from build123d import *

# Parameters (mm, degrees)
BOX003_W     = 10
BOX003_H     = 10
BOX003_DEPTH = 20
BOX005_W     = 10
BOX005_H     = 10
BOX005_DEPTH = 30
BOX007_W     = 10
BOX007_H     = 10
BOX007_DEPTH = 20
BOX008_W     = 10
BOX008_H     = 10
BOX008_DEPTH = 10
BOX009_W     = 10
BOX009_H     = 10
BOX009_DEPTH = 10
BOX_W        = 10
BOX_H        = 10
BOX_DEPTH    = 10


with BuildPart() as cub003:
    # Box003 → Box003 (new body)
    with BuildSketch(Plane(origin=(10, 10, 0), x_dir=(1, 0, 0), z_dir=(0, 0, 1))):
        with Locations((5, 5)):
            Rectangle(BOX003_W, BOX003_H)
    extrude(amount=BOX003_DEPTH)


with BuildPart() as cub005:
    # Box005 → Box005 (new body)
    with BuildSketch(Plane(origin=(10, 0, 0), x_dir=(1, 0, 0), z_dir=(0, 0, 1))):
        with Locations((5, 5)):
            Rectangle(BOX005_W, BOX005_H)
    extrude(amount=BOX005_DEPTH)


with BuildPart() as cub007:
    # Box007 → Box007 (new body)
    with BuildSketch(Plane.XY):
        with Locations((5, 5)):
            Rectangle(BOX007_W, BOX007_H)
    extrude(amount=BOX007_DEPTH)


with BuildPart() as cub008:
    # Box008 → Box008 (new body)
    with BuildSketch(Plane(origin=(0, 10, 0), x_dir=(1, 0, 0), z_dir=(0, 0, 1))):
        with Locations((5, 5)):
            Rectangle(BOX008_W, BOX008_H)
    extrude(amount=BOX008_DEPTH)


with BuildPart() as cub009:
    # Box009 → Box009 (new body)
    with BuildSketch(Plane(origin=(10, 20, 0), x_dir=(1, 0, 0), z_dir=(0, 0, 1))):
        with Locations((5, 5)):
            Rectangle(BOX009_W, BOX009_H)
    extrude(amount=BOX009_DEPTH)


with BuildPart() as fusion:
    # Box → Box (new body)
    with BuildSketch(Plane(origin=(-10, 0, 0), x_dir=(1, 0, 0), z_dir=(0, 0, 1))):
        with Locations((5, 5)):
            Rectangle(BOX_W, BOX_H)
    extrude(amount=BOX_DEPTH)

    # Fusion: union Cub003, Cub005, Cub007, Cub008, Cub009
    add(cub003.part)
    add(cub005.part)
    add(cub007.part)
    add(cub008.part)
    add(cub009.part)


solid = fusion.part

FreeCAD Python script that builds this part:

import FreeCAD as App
import Part
import Sketcher

V = App.Vector
Q = App.Units.Quantity

doc = App.newDocument("Part")
body = doc.addObject("PartDesign::Body", "Body")

sketch1 = body.newObject("Sketcher::SketchObject", "Sketch")
sketch1.AttachmentSupport = (doc.getObject("XY_Plane"), [""])
sketch1.MapMode = "FlatFace"
sketch1.addGeometry([
    Part.LineSegment(V(10, 20, 0), V(10, 10, 0)),
    Part.LineSegment(V(10, 10, 0), V(20, 10, 0)),
    Part.LineSegment(V(20, 10, 0), V(20, 20, 0)),
    Part.LineSegment(V(20, 20, 0), V(10, 20, 0)),
], False)
sketch1.addConstraint([
    Sketcher.Constraint("Coincident", 0, 2, 1, 1),
    Sketcher.Constraint("Coincident", 1, 2, 2, 1),
    Sketcher.Constraint("Coincident", 2, 2, 3, 1),
    Sketcher.Constraint("Coincident", 3, 2, 0, 1),
    Sketcher.Constraint("Vertical", 0),
    Sketcher.Constraint("Horizontal", 1),
    Sketcher.Constraint("Vertical", 2),
    Sketcher.Constraint("Horizontal", 3),
    Sketcher.Constraint("Equal", 3, 0),
    Sketcher.Constraint("DistanceX", 1, 1, 1, 2, Q("10 mm")),
    Sketcher.Constraint("DistanceX", -1, 1, 0, 2, Q("10 mm")),
    Sketcher.Constraint("DistanceY", -1, 1, 0, 2, Q("10 mm")),
])
pad1 = body.newObject("PartDesign::Pad", "Pad")
pad1.Profile = sketch1
pad1.Length = 20
body2 = doc.addObject("PartDesign::Body", "Body001")

sketch2 = body2.newObject("Sketcher::SketchObject", "Sketch001")
sketch2.AttachmentSupport = (doc.getObject("XY_Plane001"), [""])
sketch2.MapMode = "FlatFace"
sketch2.addGeometry([
    Part.LineSegment(V(10, 10, 0), V(10, 0, 0)),
    Part.LineSegment(V(10, 0, 0), V(20, 0, 0)),
    Part.LineSegment(V(20, 0, 0), V(20, 10, 0)),
    Part.LineSegment(V(20, 10, 0), V(10, 10, 0)),
], False)
sketch2.addConstraint([
    Sketcher.Constraint("Coincident", 0, 2, 1, 1),
    Sketcher.Constraint("Coincident", 1, 2, 2, 1),
    Sketcher.Constraint("Coincident", 2, 2, 3, 1),
    Sketcher.Constraint("Coincident", 3, 2, 0, 1),
    Sketcher.Constraint("Vertical", 0),
    Sketcher.Constraint("Horizontal", 1),
    Sketcher.Constraint("Vertical", 2),
    Sketcher.Constraint("Horizontal", 3),
    Sketcher.Constraint("PointOnObject", 0, 2, -1),
    Sketcher.Constraint("Equal", 3, 0),
    Sketcher.Constraint("DistanceX", 1, 1, 1, 2, Q("10 mm")),
    Sketcher.Constraint("DistanceX", -1, 1, 0, 2, Q("10 mm")),
])
pad2 = body2.newObject("PartDesign::Pad", "Pad001")
pad2.Profile = sketch2
pad2.Length = 30
body3 = doc.addObject("PartDesign::Body", "Body002")

sketch3 = body3.newObject("Sketcher::SketchObject", "Sketch002")
sketch3.AttachmentSupport = (doc.getObject("XY_Plane002"), [""])
sketch3.MapMode = "FlatFace"
sketch3.addGeometry([
    Part.LineSegment(V(0, 10, 0), V(0, 0, 0)),
    Part.LineSegment(V(0, 0, 0), V(10, 0, 0)),
    Part.LineSegment(V(10, 0, 0), V(10, 10, 0)),
    Part.LineSegment(V(10, 10, 0), V(0, 10, 0)),
], False)
sketch3.addConstraint([
    Sketcher.Constraint("Coincident", 0, 2, 1, 1),
    Sketcher.Constraint("Coincident", 1, 2, 2, 1),
    Sketcher.Constraint("Coincident", 2, 2, 3, 1),
    Sketcher.Constraint("Coincident", 3, 2, 0, 1),
    Sketcher.Constraint("Vertical", 0),
    Sketcher.Constraint("Horizontal", 1),
    Sketcher.Constraint("Vertical", 2),
    Sketcher.Constraint("Horizontal", 3),
    Sketcher.Constraint("Coincident", 0, 2, -1, 1),
    Sketcher.Constraint("Equal", 3, 0),
    Sketcher.Constraint("DistanceX", 1, 1, 1, 2, Q("10 mm")),
])
pad3 = body3.newObject("PartDesign::Pad", "Pad002")
pad3.Profile = sketch3
pad3.Length = 20
body4 = doc.addObject("PartDesign::Body", "Body003")

sketch4 = body4.newObject("Sketcher::SketchObject", "Sketch003")
sketch4.AttachmentSupport = (doc.getObject("XY_Plane003"), [""])
sketch4.MapMode = "FlatFace"
sketch4.addGeometry([
    Part.LineSegment(V(0, 20, 0), V(0, 10, 0)),
    Part.LineSegment(V(0, 10, 0), V(10, 10, 0)),
    Part.LineSegment(V(10, 10, 0), V(10, 20, 0)),
    Part.LineSegment(V(10, 20, 0), V(0, 20, 0)),
], False)
sketch4.addConstraint([
    Sketcher.Constraint("Coincident", 0, 2, 1, 1),
    Sketcher.Constraint("Coincident", 1, 2, 2, 1),
    Sketcher.Constraint("Coincident", 2, 2, 3, 1),
    Sketcher.Constraint("Coincident", 3, 2, 0, 1),
    Sketcher.Constraint("Vertical", 0),
    Sketcher.Constraint("Horizontal", 1),
    Sketcher.Constraint("Vertical", 2),
    Sketcher.Constraint("Horizontal", 3),
    Sketcher.Constraint("PointOnObject", 0, 2, -2),
    Sketcher.Constraint("Equal", 3, 0),
    Sketcher.Constraint("DistanceX", 1, 1, 1, 2, Q("10 mm")),
    Sketcher.Constraint("DistanceY", -1, 1, 0, 2, Q("10 mm")),
])
pad4 = body4.newObject("PartDesign::Pad", "Pad003")
pad4.Profile = sketch4
pad4.Length = 10
body5 = doc.addObject("PartDesign::Body", "Body004")

sketch5 = body5.newObject("Sketcher::SketchObject", "Sketch004")
sketch5.AttachmentSupport = (doc.getObject("XY_Plane004"), [""])
sketch5.MapMode = "FlatFace"
sketch5.addGeometry([
    Part.LineSegment(V(10, 30, 0), V(10, 20, 0)),
    Part.LineSegment(V(10, 20, 0), V(20, 20, 0)),
    Part.LineSegment(V(20, 20, 0), V(20, 30, 0)),
    Part.LineSegment(V(20, 30, 0), V(10, 30, 0)),
], False)
sketch5.addConstraint([
    Sketcher.Constraint("Coincident", 0, 2, 1, 1),
    Sketcher.Constraint("Coincident", 1, 2, 2, 1),
    Sketcher.Constraint("Coincident", 2, 2, 3, 1),
    Sketcher.Constraint("Coincident", 3, 2, 0, 1),
    Sketcher.Constraint("Vertical", 0),
    Sketcher.Constraint("Horizontal", 1),
    Sketcher.Constraint("Vertical", 2),
    Sketcher.Constraint("Horizontal", 3),
    Sketcher.Constraint("Equal", 3, 0),
    Sketcher.Constraint("DistanceX", 1, 1, 1, 2, Q("10 mm")),
    Sketcher.Constraint("DistanceX", -1, 1, 0, 2, Q("10 mm")),
    Sketcher.Constraint("DistanceY", -1, 1, 0, 2, Q("20 mm")),
])
pad5 = body5.newObject("PartDesign::Pad", "Pad004")
pad5.Profile = sketch5
pad5.Length = 10
body6 = doc.addObject("PartDesign::Body", "Body005")
body6.AllowCompound = True

sketch6 = body6.newObject("Sketcher::SketchObject", "Sketch005")
sketch6.AttachmentSupport = (doc.getObject("XY_Plane005"), [""])
sketch6.MapMode = "FlatFace"
sketch6.addGeometry([
    Part.LineSegment(V(-10, 10, 0), V(-10, 0, 0)),
    Part.LineSegment(V(-10, 0, 0), V(0, 0, 0)),
    Part.LineSegment(V(0, 0, 0), V(0, 10, 0)),
    Part.LineSegment(V(0, 10, 0), V(-10, 10, 0)),
], False)
sketch6.addConstraint([
    Sketcher.Constraint("Coincident", 0, 2, 1, 1),
    Sketcher.Constraint("Coincident", 1, 2, 2, 1),
    Sketcher.Constraint("Coincident", 2, 2, 3, 1),
    Sketcher.Constraint("Coincident", 3, 2, 0, 1),
    Sketcher.Constraint("Vertical", 0),
    Sketcher.Constraint("Horizontal", 1),
    Sketcher.Constraint("Vertical", 2),
    Sketcher.Constraint("Horizontal", 3),
    Sketcher.Constraint("Coincident", 1, 2, -1, 1),
    Sketcher.Constraint("Equal", 3, 0),
    Sketcher.Constraint("DistanceX", 1, 1, 1, 2, Q("10 mm")),
])
pad6 = body6.newObject("PartDesign::Pad", "Pad005")
pad6.Profile = sketch6
pad6.Length = 10
doc.recompute()

boolean = body6.newObject("PartDesign::Boolean", "Boolean")
boolean.Type = "Fuse"
boolean.addObjects([body])
doc.recompute()

boolean2 = body6.newObject("PartDesign::Boolean", "Boolean001")
boolean2.Type = "Fuse"
boolean2.addObjects([body2])
doc.recompute()

boolean3 = body6.newObject("PartDesign::Boolean", "Boolean002")
boolean3.Type = "Fuse"
boolean3.addObjects([body3])
doc.recompute()

boolean4 = body6.newObject("PartDesign::Boolean", "Boolean003")
boolean4.Type = "Fuse"
boolean4.addObjects([body4])
doc.recompute()

boolean5 = body6.newObject("PartDesign::Boolean", "Boolean004")
boolean5.Type = "Fuse"
boolean5.addObjects([body5])

doc.recompute()
